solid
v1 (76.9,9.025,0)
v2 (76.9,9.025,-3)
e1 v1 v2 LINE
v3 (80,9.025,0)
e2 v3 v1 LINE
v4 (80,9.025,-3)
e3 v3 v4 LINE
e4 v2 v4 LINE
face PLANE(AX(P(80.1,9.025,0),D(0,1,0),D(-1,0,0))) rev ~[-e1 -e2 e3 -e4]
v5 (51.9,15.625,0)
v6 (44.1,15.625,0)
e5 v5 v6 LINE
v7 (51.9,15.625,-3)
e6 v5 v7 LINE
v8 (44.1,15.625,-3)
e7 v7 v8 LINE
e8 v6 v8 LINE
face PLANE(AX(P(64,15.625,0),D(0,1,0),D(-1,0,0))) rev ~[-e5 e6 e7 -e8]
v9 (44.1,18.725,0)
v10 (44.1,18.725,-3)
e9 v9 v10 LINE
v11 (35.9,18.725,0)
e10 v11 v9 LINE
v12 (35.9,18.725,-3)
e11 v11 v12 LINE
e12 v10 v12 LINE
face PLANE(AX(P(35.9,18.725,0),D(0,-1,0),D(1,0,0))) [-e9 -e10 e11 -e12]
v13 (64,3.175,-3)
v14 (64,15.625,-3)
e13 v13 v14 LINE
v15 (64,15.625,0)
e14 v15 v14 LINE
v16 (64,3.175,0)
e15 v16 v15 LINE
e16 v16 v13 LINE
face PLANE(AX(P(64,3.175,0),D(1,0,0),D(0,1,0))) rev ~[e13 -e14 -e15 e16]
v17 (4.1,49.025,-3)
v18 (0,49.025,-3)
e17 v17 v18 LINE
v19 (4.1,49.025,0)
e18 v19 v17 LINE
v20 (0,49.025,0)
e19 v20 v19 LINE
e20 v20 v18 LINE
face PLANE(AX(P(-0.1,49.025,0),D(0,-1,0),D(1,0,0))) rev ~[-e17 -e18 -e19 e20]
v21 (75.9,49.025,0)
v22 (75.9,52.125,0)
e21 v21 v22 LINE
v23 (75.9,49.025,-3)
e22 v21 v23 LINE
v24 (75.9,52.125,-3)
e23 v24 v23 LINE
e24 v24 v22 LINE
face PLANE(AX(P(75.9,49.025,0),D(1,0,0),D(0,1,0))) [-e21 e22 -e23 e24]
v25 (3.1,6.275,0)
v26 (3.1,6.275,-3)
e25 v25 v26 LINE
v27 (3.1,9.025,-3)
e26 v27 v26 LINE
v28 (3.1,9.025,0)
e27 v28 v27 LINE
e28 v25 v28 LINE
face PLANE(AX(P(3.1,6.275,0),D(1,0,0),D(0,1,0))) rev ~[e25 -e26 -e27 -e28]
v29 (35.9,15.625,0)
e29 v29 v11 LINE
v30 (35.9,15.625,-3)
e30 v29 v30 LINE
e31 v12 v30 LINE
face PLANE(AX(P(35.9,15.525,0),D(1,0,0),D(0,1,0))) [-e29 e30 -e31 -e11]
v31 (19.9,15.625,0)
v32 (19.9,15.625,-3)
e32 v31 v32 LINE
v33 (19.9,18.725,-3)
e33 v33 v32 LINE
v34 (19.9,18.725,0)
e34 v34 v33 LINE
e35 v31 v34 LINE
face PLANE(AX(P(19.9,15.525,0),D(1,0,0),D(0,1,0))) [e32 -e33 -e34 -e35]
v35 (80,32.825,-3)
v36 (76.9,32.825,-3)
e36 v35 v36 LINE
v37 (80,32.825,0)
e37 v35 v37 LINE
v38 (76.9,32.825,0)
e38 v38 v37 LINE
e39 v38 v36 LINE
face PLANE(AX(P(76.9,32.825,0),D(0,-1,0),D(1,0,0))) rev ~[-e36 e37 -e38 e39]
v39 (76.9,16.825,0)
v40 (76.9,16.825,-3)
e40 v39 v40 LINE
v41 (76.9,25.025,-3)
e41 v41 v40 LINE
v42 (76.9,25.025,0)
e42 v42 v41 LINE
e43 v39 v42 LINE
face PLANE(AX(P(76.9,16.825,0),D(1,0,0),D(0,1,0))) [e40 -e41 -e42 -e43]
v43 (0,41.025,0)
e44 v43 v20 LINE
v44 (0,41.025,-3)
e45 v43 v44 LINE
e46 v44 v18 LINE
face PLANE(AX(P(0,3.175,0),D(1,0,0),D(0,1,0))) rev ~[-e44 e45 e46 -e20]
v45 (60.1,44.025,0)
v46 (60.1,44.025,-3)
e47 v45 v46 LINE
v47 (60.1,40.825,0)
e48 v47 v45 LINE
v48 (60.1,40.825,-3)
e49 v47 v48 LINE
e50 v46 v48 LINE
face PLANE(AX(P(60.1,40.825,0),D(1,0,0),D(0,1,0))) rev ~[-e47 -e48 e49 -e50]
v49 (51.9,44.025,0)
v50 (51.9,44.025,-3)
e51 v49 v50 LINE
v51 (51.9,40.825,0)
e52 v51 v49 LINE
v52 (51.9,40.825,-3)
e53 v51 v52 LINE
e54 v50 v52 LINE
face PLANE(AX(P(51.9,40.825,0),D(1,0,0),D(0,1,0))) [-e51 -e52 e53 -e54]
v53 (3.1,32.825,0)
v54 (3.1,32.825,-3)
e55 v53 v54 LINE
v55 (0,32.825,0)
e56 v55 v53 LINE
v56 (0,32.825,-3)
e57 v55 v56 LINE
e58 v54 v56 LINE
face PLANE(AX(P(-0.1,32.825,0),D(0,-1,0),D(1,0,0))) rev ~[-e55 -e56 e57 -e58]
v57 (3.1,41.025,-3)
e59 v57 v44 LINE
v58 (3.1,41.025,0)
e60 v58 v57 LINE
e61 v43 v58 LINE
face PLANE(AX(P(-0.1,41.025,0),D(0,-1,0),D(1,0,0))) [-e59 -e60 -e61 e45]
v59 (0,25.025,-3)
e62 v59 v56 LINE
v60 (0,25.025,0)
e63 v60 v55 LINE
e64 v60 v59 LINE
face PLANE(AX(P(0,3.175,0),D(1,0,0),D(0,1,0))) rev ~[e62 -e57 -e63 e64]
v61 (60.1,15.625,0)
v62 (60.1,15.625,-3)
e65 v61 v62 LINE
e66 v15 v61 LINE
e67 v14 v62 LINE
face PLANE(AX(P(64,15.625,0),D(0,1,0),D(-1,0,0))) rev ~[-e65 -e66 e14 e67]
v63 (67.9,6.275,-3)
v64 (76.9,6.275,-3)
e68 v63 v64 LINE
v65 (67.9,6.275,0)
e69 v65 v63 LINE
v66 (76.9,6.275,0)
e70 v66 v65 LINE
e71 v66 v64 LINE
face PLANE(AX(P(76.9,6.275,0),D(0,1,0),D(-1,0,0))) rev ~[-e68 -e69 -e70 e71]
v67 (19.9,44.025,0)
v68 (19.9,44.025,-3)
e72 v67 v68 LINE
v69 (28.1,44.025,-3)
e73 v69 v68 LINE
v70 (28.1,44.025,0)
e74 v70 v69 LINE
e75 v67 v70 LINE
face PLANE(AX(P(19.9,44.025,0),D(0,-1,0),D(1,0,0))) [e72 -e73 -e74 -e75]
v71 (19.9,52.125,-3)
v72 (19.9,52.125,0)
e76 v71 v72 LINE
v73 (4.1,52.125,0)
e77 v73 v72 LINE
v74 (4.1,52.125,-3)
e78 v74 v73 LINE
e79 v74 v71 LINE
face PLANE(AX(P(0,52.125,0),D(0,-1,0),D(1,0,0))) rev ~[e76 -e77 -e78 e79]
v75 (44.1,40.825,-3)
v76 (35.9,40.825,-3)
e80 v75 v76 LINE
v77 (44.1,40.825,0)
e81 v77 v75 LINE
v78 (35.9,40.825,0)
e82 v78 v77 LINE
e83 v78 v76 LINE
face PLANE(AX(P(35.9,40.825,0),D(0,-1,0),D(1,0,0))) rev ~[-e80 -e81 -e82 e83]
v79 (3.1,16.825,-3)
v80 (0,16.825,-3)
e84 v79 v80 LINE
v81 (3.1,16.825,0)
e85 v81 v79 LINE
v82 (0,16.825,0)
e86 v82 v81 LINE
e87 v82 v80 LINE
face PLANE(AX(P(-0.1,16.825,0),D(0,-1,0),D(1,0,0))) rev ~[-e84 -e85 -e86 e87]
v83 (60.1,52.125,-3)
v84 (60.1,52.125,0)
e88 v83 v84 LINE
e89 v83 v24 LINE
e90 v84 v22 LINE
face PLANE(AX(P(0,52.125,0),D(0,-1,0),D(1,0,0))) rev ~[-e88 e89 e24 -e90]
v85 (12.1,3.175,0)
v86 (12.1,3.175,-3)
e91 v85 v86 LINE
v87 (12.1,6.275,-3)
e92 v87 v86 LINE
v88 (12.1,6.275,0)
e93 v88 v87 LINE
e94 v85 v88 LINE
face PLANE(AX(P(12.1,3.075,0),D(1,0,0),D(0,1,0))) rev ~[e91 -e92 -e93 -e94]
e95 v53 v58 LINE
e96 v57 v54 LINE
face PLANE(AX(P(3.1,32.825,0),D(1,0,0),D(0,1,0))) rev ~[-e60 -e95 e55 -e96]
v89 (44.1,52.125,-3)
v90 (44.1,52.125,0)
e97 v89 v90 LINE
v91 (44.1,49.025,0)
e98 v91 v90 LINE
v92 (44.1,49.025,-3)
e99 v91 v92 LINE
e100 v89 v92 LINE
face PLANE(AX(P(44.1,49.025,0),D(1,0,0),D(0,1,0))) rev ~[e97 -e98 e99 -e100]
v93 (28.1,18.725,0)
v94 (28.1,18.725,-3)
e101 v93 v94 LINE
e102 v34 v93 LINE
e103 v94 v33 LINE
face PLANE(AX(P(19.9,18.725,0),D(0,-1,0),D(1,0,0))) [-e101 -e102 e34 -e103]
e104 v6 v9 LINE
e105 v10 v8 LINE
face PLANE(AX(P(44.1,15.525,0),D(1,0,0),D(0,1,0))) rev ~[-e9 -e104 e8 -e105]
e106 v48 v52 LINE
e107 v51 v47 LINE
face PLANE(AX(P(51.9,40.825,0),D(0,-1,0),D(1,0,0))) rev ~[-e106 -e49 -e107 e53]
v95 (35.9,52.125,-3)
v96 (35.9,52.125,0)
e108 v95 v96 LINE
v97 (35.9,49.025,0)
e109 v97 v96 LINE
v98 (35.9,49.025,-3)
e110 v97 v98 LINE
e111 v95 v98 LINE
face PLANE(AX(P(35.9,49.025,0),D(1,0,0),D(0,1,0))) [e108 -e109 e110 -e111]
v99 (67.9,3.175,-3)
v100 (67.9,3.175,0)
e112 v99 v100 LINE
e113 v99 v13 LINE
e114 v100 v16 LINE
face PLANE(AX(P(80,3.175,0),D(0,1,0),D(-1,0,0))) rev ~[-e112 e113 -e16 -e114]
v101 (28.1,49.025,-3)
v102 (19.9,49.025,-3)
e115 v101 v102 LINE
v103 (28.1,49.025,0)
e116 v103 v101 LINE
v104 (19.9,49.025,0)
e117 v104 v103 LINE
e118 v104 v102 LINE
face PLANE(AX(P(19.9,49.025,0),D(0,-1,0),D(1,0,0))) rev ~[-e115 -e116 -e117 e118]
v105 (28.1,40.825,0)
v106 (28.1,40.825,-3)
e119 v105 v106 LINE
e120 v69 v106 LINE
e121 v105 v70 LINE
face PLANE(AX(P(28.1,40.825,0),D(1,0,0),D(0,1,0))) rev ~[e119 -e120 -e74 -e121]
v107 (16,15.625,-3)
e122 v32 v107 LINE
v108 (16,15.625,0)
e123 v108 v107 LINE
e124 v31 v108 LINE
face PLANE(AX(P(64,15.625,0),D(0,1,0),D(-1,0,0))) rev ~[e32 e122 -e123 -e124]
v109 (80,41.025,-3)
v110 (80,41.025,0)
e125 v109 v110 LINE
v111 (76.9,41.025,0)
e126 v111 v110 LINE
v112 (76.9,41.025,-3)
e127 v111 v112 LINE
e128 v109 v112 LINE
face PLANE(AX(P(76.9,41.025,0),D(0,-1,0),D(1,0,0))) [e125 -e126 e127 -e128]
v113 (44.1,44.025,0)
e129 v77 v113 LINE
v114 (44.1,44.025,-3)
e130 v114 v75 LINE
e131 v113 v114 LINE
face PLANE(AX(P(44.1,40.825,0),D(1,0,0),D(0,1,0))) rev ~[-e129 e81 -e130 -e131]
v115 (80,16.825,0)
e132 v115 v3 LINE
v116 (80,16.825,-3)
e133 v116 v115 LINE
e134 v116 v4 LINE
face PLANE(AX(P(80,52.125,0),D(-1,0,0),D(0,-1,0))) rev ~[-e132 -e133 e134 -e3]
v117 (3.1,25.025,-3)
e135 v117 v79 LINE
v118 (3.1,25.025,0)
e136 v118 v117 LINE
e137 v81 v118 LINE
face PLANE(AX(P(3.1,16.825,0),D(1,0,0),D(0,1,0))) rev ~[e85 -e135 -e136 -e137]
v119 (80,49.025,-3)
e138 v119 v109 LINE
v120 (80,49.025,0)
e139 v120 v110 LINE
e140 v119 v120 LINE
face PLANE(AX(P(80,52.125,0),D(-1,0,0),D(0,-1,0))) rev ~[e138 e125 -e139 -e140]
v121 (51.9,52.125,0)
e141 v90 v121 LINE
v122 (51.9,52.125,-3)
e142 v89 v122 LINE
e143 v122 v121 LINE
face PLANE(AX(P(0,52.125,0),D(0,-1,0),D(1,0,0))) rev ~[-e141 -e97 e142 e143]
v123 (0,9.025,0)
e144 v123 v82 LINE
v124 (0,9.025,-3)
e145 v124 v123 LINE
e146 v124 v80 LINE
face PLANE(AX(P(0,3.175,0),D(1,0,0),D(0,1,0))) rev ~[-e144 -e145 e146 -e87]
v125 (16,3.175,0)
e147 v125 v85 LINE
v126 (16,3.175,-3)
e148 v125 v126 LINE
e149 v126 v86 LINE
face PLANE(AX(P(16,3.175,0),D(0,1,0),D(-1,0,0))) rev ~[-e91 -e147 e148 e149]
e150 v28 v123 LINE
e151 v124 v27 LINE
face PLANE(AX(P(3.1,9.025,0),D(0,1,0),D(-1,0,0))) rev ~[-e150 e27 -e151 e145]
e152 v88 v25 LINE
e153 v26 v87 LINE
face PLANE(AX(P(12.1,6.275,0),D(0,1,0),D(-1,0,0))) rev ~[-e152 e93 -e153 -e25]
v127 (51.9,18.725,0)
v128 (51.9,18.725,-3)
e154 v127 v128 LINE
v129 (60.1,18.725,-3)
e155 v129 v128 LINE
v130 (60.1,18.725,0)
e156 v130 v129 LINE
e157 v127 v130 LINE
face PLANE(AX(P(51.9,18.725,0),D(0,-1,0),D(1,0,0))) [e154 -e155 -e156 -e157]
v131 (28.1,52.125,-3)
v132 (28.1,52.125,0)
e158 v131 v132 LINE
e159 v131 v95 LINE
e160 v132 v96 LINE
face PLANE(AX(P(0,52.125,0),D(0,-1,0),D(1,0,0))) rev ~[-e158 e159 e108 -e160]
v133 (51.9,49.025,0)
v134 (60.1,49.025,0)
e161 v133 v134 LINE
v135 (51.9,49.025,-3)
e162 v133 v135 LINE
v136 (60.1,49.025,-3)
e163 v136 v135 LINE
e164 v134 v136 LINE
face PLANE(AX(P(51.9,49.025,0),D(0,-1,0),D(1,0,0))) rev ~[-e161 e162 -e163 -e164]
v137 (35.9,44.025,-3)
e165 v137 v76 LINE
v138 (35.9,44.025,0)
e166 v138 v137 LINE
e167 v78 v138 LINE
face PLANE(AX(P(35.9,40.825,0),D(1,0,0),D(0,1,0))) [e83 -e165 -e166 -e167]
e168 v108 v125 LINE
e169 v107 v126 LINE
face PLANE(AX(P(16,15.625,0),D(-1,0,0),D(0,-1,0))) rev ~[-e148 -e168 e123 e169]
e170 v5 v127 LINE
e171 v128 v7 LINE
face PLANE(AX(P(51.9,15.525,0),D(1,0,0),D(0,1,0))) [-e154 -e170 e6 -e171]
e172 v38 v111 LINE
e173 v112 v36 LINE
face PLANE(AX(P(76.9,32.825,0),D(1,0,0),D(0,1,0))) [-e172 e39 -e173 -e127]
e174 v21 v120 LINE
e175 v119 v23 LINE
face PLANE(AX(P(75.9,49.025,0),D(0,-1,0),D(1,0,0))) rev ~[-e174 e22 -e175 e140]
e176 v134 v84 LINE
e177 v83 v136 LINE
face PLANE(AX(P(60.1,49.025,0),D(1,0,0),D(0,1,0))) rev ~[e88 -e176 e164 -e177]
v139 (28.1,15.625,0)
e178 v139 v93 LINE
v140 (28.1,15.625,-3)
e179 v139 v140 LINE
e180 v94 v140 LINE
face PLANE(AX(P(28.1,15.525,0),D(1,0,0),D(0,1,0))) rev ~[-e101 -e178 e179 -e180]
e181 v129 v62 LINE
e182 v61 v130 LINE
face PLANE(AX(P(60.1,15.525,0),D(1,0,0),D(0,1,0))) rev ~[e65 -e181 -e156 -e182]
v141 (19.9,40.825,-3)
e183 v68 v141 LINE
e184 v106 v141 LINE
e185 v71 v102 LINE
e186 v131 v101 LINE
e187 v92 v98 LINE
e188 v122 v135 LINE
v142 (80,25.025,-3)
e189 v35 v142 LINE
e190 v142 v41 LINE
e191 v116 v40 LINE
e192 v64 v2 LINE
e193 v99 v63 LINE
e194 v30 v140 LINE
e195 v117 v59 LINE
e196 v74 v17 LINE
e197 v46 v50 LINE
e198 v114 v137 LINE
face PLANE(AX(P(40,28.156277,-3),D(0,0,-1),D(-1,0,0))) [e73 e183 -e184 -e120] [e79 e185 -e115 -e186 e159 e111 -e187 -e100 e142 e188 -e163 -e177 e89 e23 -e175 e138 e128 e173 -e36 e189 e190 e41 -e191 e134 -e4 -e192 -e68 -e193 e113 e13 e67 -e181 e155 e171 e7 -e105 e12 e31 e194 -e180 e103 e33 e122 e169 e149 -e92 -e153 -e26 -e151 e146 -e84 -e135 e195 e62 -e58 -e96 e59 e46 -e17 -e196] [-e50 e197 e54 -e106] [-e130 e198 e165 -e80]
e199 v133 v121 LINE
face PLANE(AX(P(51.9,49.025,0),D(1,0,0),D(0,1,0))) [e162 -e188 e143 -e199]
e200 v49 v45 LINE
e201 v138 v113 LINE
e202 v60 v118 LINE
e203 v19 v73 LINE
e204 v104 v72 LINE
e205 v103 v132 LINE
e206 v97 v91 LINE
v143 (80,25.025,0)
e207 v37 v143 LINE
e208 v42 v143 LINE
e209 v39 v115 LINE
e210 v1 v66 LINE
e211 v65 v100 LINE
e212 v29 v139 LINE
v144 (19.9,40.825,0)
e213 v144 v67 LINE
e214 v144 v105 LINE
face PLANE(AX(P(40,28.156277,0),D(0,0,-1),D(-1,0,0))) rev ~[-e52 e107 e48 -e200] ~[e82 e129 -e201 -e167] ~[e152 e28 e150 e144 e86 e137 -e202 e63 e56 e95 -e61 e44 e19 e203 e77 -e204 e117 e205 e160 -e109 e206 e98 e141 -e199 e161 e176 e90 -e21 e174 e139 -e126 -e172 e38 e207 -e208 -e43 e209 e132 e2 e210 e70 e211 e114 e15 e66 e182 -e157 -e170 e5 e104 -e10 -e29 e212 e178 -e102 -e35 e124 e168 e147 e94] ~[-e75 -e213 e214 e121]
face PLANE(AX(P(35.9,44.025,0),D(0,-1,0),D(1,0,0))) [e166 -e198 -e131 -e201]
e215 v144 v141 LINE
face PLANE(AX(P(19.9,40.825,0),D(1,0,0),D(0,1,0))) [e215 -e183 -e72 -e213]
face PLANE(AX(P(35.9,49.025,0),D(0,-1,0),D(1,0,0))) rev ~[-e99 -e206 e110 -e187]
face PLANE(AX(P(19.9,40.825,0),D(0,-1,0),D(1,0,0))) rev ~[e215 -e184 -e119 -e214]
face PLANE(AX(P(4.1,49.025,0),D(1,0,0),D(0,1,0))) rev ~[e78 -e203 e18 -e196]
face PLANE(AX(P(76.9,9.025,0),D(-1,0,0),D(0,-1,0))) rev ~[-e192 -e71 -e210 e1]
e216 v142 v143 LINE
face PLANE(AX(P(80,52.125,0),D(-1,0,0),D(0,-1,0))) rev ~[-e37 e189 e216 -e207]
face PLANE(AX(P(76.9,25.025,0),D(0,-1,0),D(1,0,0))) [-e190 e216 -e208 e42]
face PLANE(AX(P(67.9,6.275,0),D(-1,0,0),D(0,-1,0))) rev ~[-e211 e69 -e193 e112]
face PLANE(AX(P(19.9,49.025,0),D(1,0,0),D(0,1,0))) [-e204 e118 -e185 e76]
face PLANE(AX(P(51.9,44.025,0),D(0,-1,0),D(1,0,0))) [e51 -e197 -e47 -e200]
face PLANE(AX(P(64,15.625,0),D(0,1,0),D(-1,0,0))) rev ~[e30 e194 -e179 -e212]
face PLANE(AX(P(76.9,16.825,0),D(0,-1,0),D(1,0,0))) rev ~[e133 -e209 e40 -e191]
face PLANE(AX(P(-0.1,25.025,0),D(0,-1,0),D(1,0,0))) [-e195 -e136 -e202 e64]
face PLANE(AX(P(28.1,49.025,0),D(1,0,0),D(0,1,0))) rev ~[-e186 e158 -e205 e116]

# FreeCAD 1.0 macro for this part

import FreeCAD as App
import Part
import Sketcher
from FreeCAD import Vector
Q = App.Units.Quantity

doc = App.newDocument("Part")
body = doc.addObject("PartDesign::Body", "Body")

# Sketch on XY plane
sketch1 = doc.addObject("Sketcher::SketchObject", "Sketch")
body.addObject(sketch1)
sketch1.AttachmentSupport = (doc.XY_Plane, [""])
sketch1.MapMode = "FlatFace"
sketch1.addGeometry(Part.LineSegment(Vector(80, 52.125, 0), Vector(0, 52.125, 0)), False)
sketch1.addGeometry(Part.LineSegment(Vector(0, 52.125, 0), Vector(0, 3.175, 0)), False)
sketch1.addGeometry(Part.LineSegment(Vector(0, 3.175, 0), Vector(16, 3.175, 0)), False)
sketch1.addGeometry(Part.LineSegment(Vector(16, 3.175, 0), Vector(16, 15.625, 0)), False)
sketch1.addGeometry(Part.LineSegment(Vector(16, 15.625, 0), Vector(64, 15.625, 0)), False)
sketch1.addGeometry(Part.LineSegment(Vector(64, 15.625, 0), Vector(64, 3.175, 0)), False)
sketch1.addGeometry(Part.LineSegment(Vector(64, 3.175, 0), Vector(80, 3.175, 0)), False)
sketch1.addGeometry(Part.LineSegment(Vector(80, 3.175, 0), Vector(80, 52.125, 0)), False)
sketch1.addConstraint(Sketcher.Constraint("Coincident", 0, 2, 1, 1))
sketch1.addConstraint(Sketcher.Constraint("Coincident", 1, 2, 2, 1))
sketch1.addConstraint(Sketcher.Constraint("Coincident", 2, 2, 3, 1))
sketch1.addConstraint(Sketcher.Constraint("Coincident", 3, 2, 4, 1))
sketch1.addConstraint(Sketcher.Constraint("Coincident", 4, 2, 5, 1))
sketch1.addConstraint(Sketcher.Constraint("Coincident", 5, 2, 6, 1))
sketch1.addConstraint(Sketcher.Constraint("Coincident", 6, 2, 7, 1))
sketch1.addConstraint(Sketcher.Constraint("Coincident", 7, 2, 0, 1))
sketch1.addConstraint(Sketcher.Constraint("Horizontal", 0))
sketch1.addConstraint(Sketcher.Constraint("Vertical", 1))
sketch1.addConstraint(Sketcher.Constraint("Horizontal", 2))
sketch1.addConstraint(Sketcher.Constraint("Vertical", 3))
sketch1.addConstraint(Sketcher.Constraint("Horizontal", 4))
sketch1.addConstraint(Sketcher.Constraint("Vertical", 5))
sketch1.addConstraint(Sketcher.Constraint("Horizontal", 6))
sketch1.addConstraint(Sketcher.Constraint("Vertical", 7))
sketch1.addConstraint(Sketcher.Constraint("PointOnObject", 0, 2, -2))
sketch1.addConstraint(Sketcher.Constraint("Horizontal", 2, 2, 5, 2))
sketch1.addConstraint(Sketcher.Constraint("Equal", 2, 6))
sketch1.addConstraint(Sketcher.Constraint("DistanceX", 0, 2, 0, 1, Q("80 mm")))
sketch1.addConstraint(Sketcher.Constraint("DistanceX", 2, 1, 2, 2, Q("16 mm")))
sketch1.addConstraint(Sketcher.Constraint("DistanceY", 1, 2, 1, 1, Q("48.95 mm")))
sketch1.addConstraint(Sketcher.Constraint("DistanceY", 3, 1, 3, 2, Q("12.45 mm")))
sketch1.addConstraint(Sketcher.Constraint("DistanceY", -1, 1, 0, 2, Q("52.125 mm")))
pad1 = doc.addObject("PartDesign::Pad", "Pad")
body.addObject(pad1)
pad1.Profile = sketch1
pad1.Length = 3
pad1.Reversed = True

# Sketch on XY plane
sketch2 = doc.addObject("Sketcher::SketchObject", "Sketch001")
body.addObject(sketch2)
sketch2.AttachmentSupport = (doc.XY_Plane, [""])
sketch2.MapMode = "FlatFace"
sketch2.addGeometry(Part.LineSegment(Vector(-0.1, 52.225, 0), Vector(-0.1, 49.025, 0)), False)
sketch2.addGeometry(Part.LineSegment(Vector(-0.1, 49.025, 0), Vector(4.1, 49.025, 0)), False)
sketch2.addGeometry(Part.LineSegment(Vector(4.1, 49.025, 0), Vector(4.1, 52.225, 0)), False)
sketch2.addGeometry(Part.LineSegment(Vector(4.1, 52.225, 0), Vector(-0.1, 52.225, 0)), False)
sketch2.addGeometry(Part.LineSegment(Vector(-0.1, 25.025, 0), Vector(-0.1, 16.825, 0)), False)
sketch2.addGeometry(Part.LineSegment(Vector(-0.1, 16.825, 0), Vector(3.1, 16.825, 0)), False)
sketch2.addGeometry(Part.LineSegment(Vector(3.1, 16.825, 0), Vector(3.1, 25.025, 0)), False)
sketch2.addGeometry(Part.LineSegment(Vector(3.1, 25.025, 0), Vector(-0.1, 25.025, 0)), False)
sketch2.addGeometry(Part.LineSegment(Vector(19.9, 18.725, 0), Vector(19.9, 15.525, 0)), False)
sketch2.addGeometry(Part.LineSegment(Vector(19.9, 15.525, 0), Vector(28.1, 15.525, 0)), False)
sketch2.addGeometry(Part.LineSegment(Vector(28.1, 15.525, 0), Vector(28.1, 18.725, 0)), False)
sketch2.addGeometry(Part.LineSegment(Vector(28.1, 18.725, 0), Vector(19.9, 18.725, 0)), False)
sketch2.addGeometry(Part.LineSegment(Vector(35.9, 18.725, 0), Vector(35.9, 15.525, 0)), False)
sketch2.addGeometry(Part.LineSegment(Vector(35.9, 15.525, 0), Vector(44.1, 15.525, 0)), False)
sketch2.addGeometry(Part.LineSegment(Vector(44.1, 15.525, 0), Vector(44.1, 18.725, 0)), False)
sketch2.addGeometry(Part.LineSegment(Vector(44.1, 18.725, 0), Vector(35.9, 18.725, 0)), False)
sketch2.addGeometry(Part.LineSegment(Vector(-0.1, 41.025, 0), Vector(-0.1, 32.825, 0)), False)
sketch2.addGeometry(Part.LineSegment(Vector(-0.1, 32.825, 0), Vector(3.1, 32.825, 0)), False)
sketch2.addGeometry(Part.LineSegment(Vector(3.1, 32.825, 0), Vector(3.1, 41.025, 0)), False)
sketch2.addGeometry(Part.LineSegment(Vector(3.1, 41.025, 0), Vector(-0.1, 41.025, 0)), False)
sketch2.addGeometry(Part.LineSegment(Vector(35.9, 52.225, 0), Vector(35.9, 49.025, 0)), False)
sketch2.addGeometry(Part.LineSegment(Vector(35.9, 49.025, 0), Vector(44.1, 49.025, 0)), False)
sketch2.addGeometry(Part.LineSegment(Vector(44.1, 49.025, 0), Vector(44.1, 52.225, 0)), False)
sketch2.addGeometry(Part.LineSegment(Vector(44.1, 52.225, 0), Vector(35.9, 52.225, 0)), False)
sketch2.addGeometry(Part.LineSegment(Vector(35.9, 44.025, 0), Vector(35.9, 40.825, 0)), False)
sketch2.addGeometry(Part.LineSegment(Vector(35.9, 40.825, 0), Vector(44.1, 40.825, 0)), False)
sketch2.addGeometry(Part.LineSegment(Vector(44.1, 40.825, 0), Vector(44.1, 44.025, 0)), False)
sketch2.addGeometry(Part.LineSegment(Vector(44.1, 44.025, 0), Vector(35.9, 44.025, 0)), False)
sketch2.addGeometry(Part.LineSegment(Vector(19.9, 44.025, 0), Vector(19.9, 40.825, 0)), False)
sketch2.addGeometry(Part.LineSegment(Vector(19.9, 40.825, 0), Vector(28.1, 40.825, 0)), False)
sketch2.addGeometry(Part.LineSegment(Vector(28.1, 40.825, 0), Vector(28.1, 44.025, 0)), False)
sketch2.addGeometry(Part.LineSegment(Vector(28.1, 44.025, 0), Vector(19.9, 44.025, 0)), False)
sketch2.addGeometry(Part.LineSegment(Vector(19.9, 52.225, 0), Vector(19.9, 49.025, 0)), False)
sketch2.addGeometry(Part.LineSegment(Vector(19.9, 49.025, 0), Vector(28.1, 49.025, 0)), False)
sketch2.addGeometry(Part.LineSegment(Vector(28.1, 49.025, 0), Vector(28.1, 52.225, 0)), False)
sketch2.addGeometry(Part.LineSegment(Vector(28.1, 52.225, 0), Vector(19.9, 52.225, 0)), False)
sketch2.addGeometry(Part.LineSegment(Vector(51.9, 44.025, 0), Vector(51.9, 40.825, 0)), False)
sketch2.addGeometry(Part.LineSegment(Vector(51.9, 40.825, 0), Vector(60.1, 40.825, 0)), False)
sketch2.addGeometry(Part.LineSegment(Vector(60.1, 40.825, 0), Vector(60.1, 44.025, 0)), False)
sketch2.addGeometry(Part.LineSegment(Vector(60.1, 44.025, 0), Vector(51.9, 44.025, 0)), False)
sketch2.addGeometry(Part.LineSegment(Vector(51.9, 18.725, 0), Vector(51.9, 15.525, 0)), False)
sketch2.addGeometry(Part.LineSegment(Vector(51.9, 15.525, 0), Vector(60.1, 15.525, 0)), False)
sketch2.addGeometry(Part.LineSegment(Vector(60.1, 15.525, 0), Vector(60.1, 18.725, 0)), False)
sketch2.addGeometry(Part.LineSegment(Vector(60.1, 18.725, 0), Vector(51.9, 18.725, 0)), False)
sketch2.addGeometry(Part.LineSegment(Vector(76.9, 41.025, 0), Vector(76.9, 32.825, 0)), False)
sketch2.addGeometry(Part.LineSegment(Vector(76.9, 32.825, 0), Vector(80.1, 32.825, 0)), False)
sketch2.addGeometry(Part.LineSegment(Vector(80.1, 32.825, 0), Vector(80.1, 41.025, 0)), False)
sketch2.addGeometry(Part.LineSegment(Vector(80.1, 41.025, 0), Vector(76.9, 41.025, 0)), False)
sketch2.addGeometry(Part.LineSegment(Vector(75.9, 52.225, 0), Vector(75.9, 49.025, 0)), False)
sketch2.addGeometry(Part.LineSegment(Vector(75.9, 49.025, 0), Vector(80.1, 49.025, 0)), False)
sketch2.addGeometry(Part.LineSegment(Vector(80.1, 49.025, 0), Vector(80.1, 52.225, 0)), False)
sketch2.addGeometry(Part.LineSegment(Vector(80.1, 52.225, 0), Vector(75.9, 52.225, 0)), False)
sketch2.addGeometry(Part.LineSegment(Vector(76.9, 25.025, 0), Vector(76.9, 16.825, 0)), False)
sketch2.addGeometry(Part.LineSegment(Vector(76.9, 16.825, 0), Vector(80.1, 16.825, 0)), False)
sketch2.addGeometry(Part.LineSegment(Vector(80.1, 16.825, 0), Vector(80.1, 25.025, 0)), False)
sketch2.addGeometry(Part.LineSegment(Vector(80.1, 25.025, 0), Vector(76.9, 25.025, 0)), False)
sketch2.addGeometry(Part.LineSegment(Vector(51.9, 52.225, 0), Vector(51.9, 49.025, 0)), False)
sketch2.addGeometry(Part.LineSegment(Vector(51.9, 49.025, 0), Vector(60.1, 49.025, 0)), False)
sketch2.addGeometry(Part.LineSegment(Vector(60.1, 49.025, 0), Vector(60.1, 52.225, 0)), False)
sketch2.addGeometry(Part.LineSegment(Vector(60.1, 52.225, 0), Vector(51.9, 52.225, 0)), False)
sketch2.addGeometry(Part.LineSegment(Vector(76.9, 9.025, 0), Vector(76.9, 6.275, 0)), False)
sketch2.addGeometry(Part.LineSegment(Vector(76.9, 6.275, 0), Vector(67.9, 6.275, 0)), False)
sketch2.addGeometry(Part.LineSegment(Vector(67.9, 6.275, 0), Vector(67.9, 3.075, 0)), False)
sketch2.addGeometry(Part.LineSegment(Vector(67.9, 3.075, 0), Vector(80.1, 3.075, 0)), False)
sketch2.addGeometry(Part.LineSegment(Vector(80.1, 3.075, 0), Vector(80.1, 9.025, 0)), False)
sketch2.addGeometry(Part.LineSegment(Vector(80.1, 9.025, 0), Vector(76.9, 9.025, 0)), False)
sketch2.addGeometry(Part.LineSegment(Vector(3.1, 6.275, 0), Vector(3.1, 9.025, 0)), False)
sketch2.addGeometry(Part.LineSegment(Vector(3.1, 9.025, 0), Vector(-0.1, 9.025, 0)), False)
sketch2.addGeometry(Part.LineSegment(Vector(-0.1, 9.025, 0), Vector(-0.1, 3.075, 0)), False)
sketch2.addGeometry(Part.LineSegment(Vector(-0.1, 3.075, 0), Vector(12.1, 3.075, 0)), False)
sketch2.addGeometry(Part.LineSegment(Vector(12.1, 3.075, 0), Vector(12.1, 6.275, 0)), False)
sketch2.addGeometry(Part.LineSegment(Vector(12.1, 6.275, 0), Vector(3.1, 6.275, 0)), False)
sketch2.addConstraint(Sketcher.Constraint("Coincident", 0, 2, 1, 1))
sketch2.addConstraint(Sketcher.Constraint("Coincident", 1, 2, 2, 1))
sketch2.addConstraint(Sketcher.Constraint("Coincident", 2, 2, 3, 1))
sketch2.addConstraint(Sketcher.Constraint("Coincident", 3, 2, 0, 1))
sketch2.addConstraint(Sketcher.Constraint("Coincident", 4, 2, 5, 1))
sketch2.addConstraint(Sketcher.Constraint("Coincident", 5, 2, 6, 1))
sketch2.addConstraint(Sketcher.Constraint("Coincident", 6, 2, 7, 1))
sketch2.addConstraint(Sketcher.Constraint("Coincident", 7, 2, 4, 1))
sketch2.addConstraint(Sketcher.Constraint("Coincident", 8, 2, 9, 1))
sketch2.addConstraint(Sketcher.Constraint("Coincident", 9, 2, 10, 1))
sketch2.addConstraint(Sketcher.Constraint("Coincident", 10, 2, 11, 1))
sketch2.addConstraint(Sketcher.Constraint("Coincident", 11, 2, 8, 1))
sketch2.addConstraint(Sketcher.Constraint("Coincident", 12, 2, 13, 1))
sketch2.addConstraint(Sketcher.Constraint("Coincident", 13, 2, 14, 1))
sketch2.addConstraint(Sketcher.Constraint("Coincident", 14, 2, 15, 1))
sketch2.addConstraint(Sketcher.Constraint("Coincident", 15, 2, 12, 1))
sketch2.addConstraint(Sketcher.Constraint("Coincident", 16, 2, 17, 1))
sketch2.addConstraint(Sketcher.Constraint("Coincident", 17, 2, 18, 1))
sketch2.addConstraint(Sketcher.Constraint("Coincident", 18, 2, 19, 1))
sketch2.addConstraint(Sketcher.Constraint("Coincident", 19, 2, 16, 1))
sketch2.addConstraint(Sketcher.Constraint("Coincident", 20, 2, 21, 1))
sketch2.addConstraint(Sketcher.Constraint("Coincident", 21, 2, 22, 1))
sketch2.addConstraint(Sketcher.Constraint("Coincident", 22, 2, 23, 1))
sketch2.addConstraint(Sketcher.Constraint("Coincident", 23, 2, 20, 1))
sketch2.addConstraint(Sketcher.Constraint("Coincident", 24, 2, 25, 1))
sketch2.addConstraint(Sketcher.Constraint("Coincident", 25, 2, 26, 1))
sketch2.addConstraint(Sketcher.Constraint("Coincident", 26, 2, 27, 1))
sketch2.addConstraint(Sketcher.Constraint("Coincident", 27, 2, 24, 1))
sketch2.addConstraint(Sketcher.Constraint("Coincident", 28, 2, 29, 1))
sketch2.addConstraint(Sketcher.Constraint("Coincident", 29, 2, 30, 1))
sketch2.addConstraint(Sketcher.Constraint("Coincident", 30, 2, 31, 1))
sketch2.addConstraint(Sketcher.Constraint("Coincident", 31, 2, 28, 1))
sketch2.addConstraint(Sketcher.Constraint("Coincident", 32, 2, 33, 1))
sketch2.addConstraint(Sketcher.Constraint("Coincident", 33, 2, 34, 1))
sketch2.addConstraint(Sketcher.Constraint("Coincident", 34, 2, 35, 1))
sketch2.addConstraint(Sketcher.Constraint("Coincident", 35, 2, 32, 1))
sketch2.addConstraint(Sketcher.Constraint("Coincident", 36, 2, 37, 1))
sketch2.addConstraint(Sketcher.Constraint("Coincident", 37, 2, 38, 1))
sketch2.addConstraint(Sketcher.Constraint("Coincident", 38, 2, 39, 1))
sketch2.addConstraint(Sketcher.Constraint("Coincident", 39, 2, 36, 1))
sketch2.addConstraint(Sketcher.Constraint("Coincident", 40, 2, 41, 1))
sketch2.addConstraint(Sketcher.Constraint("Coincident", 41, 2, 42, 1))
sketch2.addConstraint(Sketcher.Constraint("Coincident", 42, 2, 43, 1))
sketch2.addConstraint(Sketcher.Constraint("Coincident", 43, 2, 40, 1))
sketch2.addConstraint(Sketcher.Constraint("Coincident", 44, 2, 45, 1))
sketch2.addConstraint(Sketcher.Constraint("Coincident", 45, 2, 46, 1))
sketch2.addConstraint(Sketcher.Constraint("Coincident", 46, 2, 47, 1))
sketch2.addConstraint(Sketcher.Constraint("Coincident", 47, 2, 44, 1))
sketch2.addConstraint(Sketcher.Constraint("Coincident", 48, 2, 49, 1))
sketch2.addConstraint(Sketcher.Constraint("Coincident", 49, 2, 50, 1))
sketch2.addConstraint(Sketcher.Constraint("Coincident", 50, 2, 51, 1))
sketch2.addConstraint(Sketcher.Constraint("Coincident", 51, 2, 48, 1))
sketch2.addConstraint(Sketcher.Constraint("Coincident", 52, 2, 53, 1))
sketch2.addConstraint(Sketcher.Constraint("Coincident", 53, 2, 54, 1))
sketch2.addConstraint(Sketcher.Constraint("Coincident", 54, 2, 55, 1))
sketch2.addConstraint(Sketcher.Constraint("Coincident", 55, 2, 52, 1))
sketch2.addConstraint(Sketcher.Constraint("Coincident", 56, 2, 57, 1))
sketch2.addConstraint(Sketcher.Constraint("Coincident", 57, 2, 58, 1))
sketch2.addConstraint(Sketcher.Constraint("Coincident", 58, 2, 59, 1))
sketch2.addConstraint(Sketcher.Constraint("Coincident", 59, 2, 56, 1))
sketch2.addConstraint(Sketcher.Constraint("Coincident", 60, 2, 61, 1))
sketch2.addConstraint(Sketcher.Constraint("Coincident", 61, 2, 62, 1))
sketch2.addConstraint(Sketcher.Constraint("Coincident", 62, 2, 63, 1))
sketch2.addConstraint(Sketcher.Constraint("Coincident", 63, 2, 64, 1))
sketch2.addConstraint(Sketcher.Constraint("Coincident", 64, 2, 65, 1))
sketch2.addConstraint(Sketcher.Constraint("Coincident", 65, 2, 60, 1))
sketch2.addConstraint(Sketcher.Constraint("Coincident", 66, 2, 67, 1))
sketch2.addConstraint(Sketcher.Constraint("Coincident", 67, 2, 68, 1))
sketch2.addConstraint(Sketcher.Constraint("Coincident", 68, 2, 69, 1))
sketch2.addConstraint(Sketcher.Constraint("Coincident", 69, 2, 70, 1))
sketch2.addConstraint(Sketcher.Constraint("Coincident", 70, 2, 71, 1))
sketch2.addConstraint(Sketcher.Constraint("Coincident", 71, 2, 66, 1))
sketch2.addConstraint(Sketcher.Constraint("Vertical", 0))
sketch2.addConstraint(Sketcher.Constraint("Horizontal", 1))
sketch2.addConstraint(Sketcher.Constraint("Vertical", 2))
sketch2.addConstraint(Sketcher.Constraint("Horizontal", 3))
sketch2.addConstraint(Sketcher.Constraint("Vertical", 4))
sketch2.addConstraint(Sketcher.Constraint("Horizontal", 5))
sketch2.addConstraint(Sketcher.Constraint("Vertical", 6))
sketch2.addConstraint(Sketcher.Constraint("Horizontal", 7))
sketch2.addConstraint(Sketcher.Constraint("Vertical", 8))
sketch2.addConstraint(Sketcher.Constraint("Horizontal", 9))
sketch2.addConstraint(Sketcher.Constraint("Vertical", 10))
sketch2.addConstraint(Sketcher.Constraint("Horizontal", 11))
sketch2.addConstraint(Sketcher.Constraint("Vertical", 12))
sketch2.addConstraint(Sketcher.Constraint("Horizontal", 13))
sketch2.addConstraint(Sketcher.Constraint("Vertical", 14))
sketch2.addConstraint(Sketcher.Constraint("Horizontal", 15))
sketch2.addConstraint(Sketcher.Constraint("Vertical", 16))
sketch2.addConstraint(Sketcher.Constraint("Horizontal", 17))
sketch2.addConstraint(Sketcher.Constraint("Vertical", 18))
sketch2.addConstraint(Sketcher.Constraint("Horizontal", 19))
sketch2.addConstraint(Sketcher.Constraint("Vertical", 20))
sketch2.addConstraint(Sketcher.Constraint("Horizontal", 21))
sketch2.addConstraint(Sketcher.Constraint("Vertical", 22))
sketch2.addConstraint(Sketcher.Constraint("Horizontal", 23))
sketch2.addConstraint(Sketcher.Constraint("Vertical", 24))
sketch2.addConstraint(Sketcher.Constraint("Horizontal", 25))
sketch2.addConstraint(Sketcher.Constraint("Vertical", 26))
sketch2.addConstraint(Sketcher.Constraint("Horizontal", 27))
sketch2.addConstraint(Sketcher.Constraint("Vertical", 28))
sketch2.addConstraint(Sketcher.Constraint("Horizontal", 29))
sketch2.addConstraint(Sketcher.Constraint("Vertical", 30))
sketch2.addConstraint(Sketcher.Constraint("Horizontal", 31))
sketch2.addConstraint(Sketcher.Constraint("Vertical", 32))
sketch2.addConstraint(Sketcher.Constraint("Horizontal", 33))
sketch2.addConstraint(Sketcher.Constraint("Vertical", 34))
sketch2.addConstraint(Sketcher.Constraint("Horizontal", 35))
sketch2.addConstraint(Sketcher.Constraint("Vertical", 36))
sketch2.addConstraint(Sketcher.Constraint("Horizontal", 37))
sketch2.addConstraint(Sketcher.Constraint("Vertical", 38))
sketch2.addConstraint(Sketcher.Constraint("Horizontal", 39))
sketch2.addConstraint(Sketcher.Constraint("Vertical", 40))
sketch2.addConstraint(Sketcher.Constraint("Horizontal", 41))
sketch2.addConstraint(Sketcher.Constraint("Vertical", 42))
sketch2.addConstraint(Sketcher.Constraint("Horizontal", 43))
sketch2.addConstraint(Sketcher.Constraint("Vertical", 44))
sketch2.addConstraint(Sketcher.Constraint("Horizontal", 45))
sketch2.addConstraint(Sketcher.Constraint("Vertical", 46))
sketch2.addConstraint(Sketcher.Constraint("Horizontal", 47))
sketch2.addConstraint(Sketcher.Constraint("Vertical", 48))
sketch2.addConstraint(Sketcher.Constraint("Horizontal", 49))
sketch2.addConstraint(Sketcher.Constraint("Vertical", 50))
sketch2.addConstraint(Sketcher.Constraint("Horizontal", 51))
sketch2.addConstraint(Sketcher.Constraint("Vertical", 52))
sketch2.addConstraint(Sketcher.Constraint("Horizontal", 53))
sketch2.addConstraint(Sketcher.Constraint("Vertical", 54))
sketch2.addConstraint(Sketcher.Constraint("Horizontal", 55))
sketch2.addConstraint(Sketcher.Constraint("Vertical", 56))
sketch2.addConstraint(Sketcher.Constraint("Horizontal", 57))
sketch2.addConstraint(Sketcher.Constraint("Vertical", 58))
sketch2.addConstraint(Sketcher.Constraint("Horizontal", 59))
sketch2.addConstraint(Sketcher.Constraint("Vertical", 60))
sketch2.addConstraint(Sketcher.Constraint("Horizontal", 61))
sketch2.addConstraint(Sketcher.Constraint("Vertical", 62))
sketch2.addConstraint(Sketcher.Constraint("Horizontal", 63))
sketch2.addConstraint(Sketcher.Constraint("Vertical", 64))
sketch2.addConstraint(Sketcher.Constraint("Horizontal", 65))
sketch2.addConstraint(Sketcher.Constraint("Vertical", 66))
sketch2.addConstraint(Sketcher.Constraint("Horizontal", 67))
sketch2.addConstraint(Sketcher.Constraint("Vertical", 68))
sketch2.addConstraint(Sketcher.Constraint("Horizontal", 69))
sketch2.addConstraint(Sketcher.Constraint("Vertical", 70))
sketch2.addConstraint(Sketcher.Constraint("Horizontal", 71))
sketch2.addConstraint(Sketcher.Constraint("Horizontal", 9, 2, 12, 2))
sketch2.addConstraint(Sketcher.Constraint("Horizontal", 11, 2, 14, 2))
sketch2.addConstraint(Sketcher.Constraint("Horizontal", 1, 2, 20, 2))
sketch2.addConstraint(Sketcher.Constraint("Horizontal", 3, 2, 22, 2))
sketch2.addConstraint(Sketcher.Constraint("Horizontal", 25, 2, 28, 2))
sketch2.addConstraint(Sketcher.Constraint("Horizontal", 27, 2, 30, 2))
sketch2.addConstraint(Sketcher.Constraint("Horizontal", 21, 2, 32, 2))
sketch2.addConstraint(Sketcher.Constraint("Horizontal", 23, 2, 34, 2))
sketch2.addConstraint(Sketcher.Constraint("Horizontal", 29, 2, 36, 2))
sketch2.addConstraint(Sketcher.Constraint("Horizontal", 31, 2, 38, 2))
sketch2.addConstraint(Sketcher.Constraint("Horizontal", 13, 2, 40, 2))
sketch2.addConstraint(Sketcher.Constraint("Horizontal", 15, 2, 42, 2))
sketch2.addConstraint(Sketcher.Constraint("Horizontal", 17, 2, 44, 2))
sketch2.addConstraint(Sketcher.Constraint("Horizontal", 19, 2, 46, 2))
sketch2.addConstraint(Sketcher.Constraint("Horizontal", 33, 2, 48, 2))
sketch2.addConstraint(Sketcher.Constraint("Horizontal", 35, 2, 50, 2))
sketch2.addConstraint(Sketcher.Constraint("Horizontal", 5, 2, 52, 2))
sketch2.addConstraint(Sketcher.Constraint("Horizontal", 7, 2, 54, 2))
sketch2.addConstraint(Sketcher.Constraint("Horizontal", 49, 2, 56, 2))
sketch2.addConstraint(Sketcher.Constraint("Horizontal", 51, 2, 58, 2))
sketch2.addConstraint(Sketcher.Constraint("Horizontal", 65, 2, 66, 2))
sketch2.addConstraint(Sketcher.Constraint("Horizontal", 63, 2, 68, 2))
sketch2.addConstraint(Sketcher.Constraint("Horizontal", 61, 2, 70, 2))
sketch2.addConstraint(Sketcher.Constraint("Vertical", 3, 2, 4, 2))
sketch2.addConstraint(Sketcher.Constraint("Vertical", 7, 2, 16, 2))
sketch2.addConstraint(Sketcher.Constraint("Vertical", 6, 2, 17, 2))
sketch2.addConstraint(Sketcher.Constraint("Vertical", 15, 2, 20, 2))
sketch2.addConstraint(Sketcher.Constraint("Vertical", 14, 2, 21, 2))
sketch2.addConstraint(Sketcher.Constraint("Vertical", 23, 2, 24, 2))
sketch2.addConstraint(Sketcher.Constraint("Vertical", 22, 2, 25, 2))
sketch2.addConstraint(Sketcher.Constraint("Vertical", 11, 2, 28, 2))
sketch2.addConstraint(Sketcher.Constraint("Vertical", 10, 2, 29, 2))
sketch2.addConstraint(Sketcher.Constraint("Vertical", 31, 2, 32, 2))
sketch2.addConstraint(Sketcher.Constraint("Vertical", 30, 2, 33, 2))
sketch2.addConstraint(Sketcher.Constraint("Vertical", 39, 2, 40, 2))
sketch2.addConstraint(Sketcher.Constraint("Vertical", 38, 2, 41, 2))
sketch2.addConstraint(Sketcher.Constraint("Vertical", 46, 2, 49, 2))
sketch2.addConstraint(Sketcher.Constraint("Vertical", 47, 2, 52, 2))
sketch2.addConstraint(Sketcher.Constraint("Vertical", 50, 2, 53, 2))
sketch2.addConstraint(Sketcher.Constraint("Vertical", 43, 2, 56, 2))
sketch2.addConstraint(Sketcher.Constraint("Vertical", 42, 2, 57, 2))
sketch2.addConstraint(Sketcher.Constraint("Vertical", 55, 2, 60, 2))
sketch2.addConstraint(Sketcher.Constraint("Vertical", 54, 2, 63, 2))
sketch2.addConstraint(Sketcher.Constraint("Vertical", 18, 2, 66, 2))
sketch2.addConstraint(Sketcher.Constraint("Vertical", 19, 2, 67, 2))
sketch2.addConstraint(Sketcher.Constraint("Equal", 11, 13))
sketch2.addConstraint(Sketcher.Constraint("Equal", 35, 37))
sketch2.addConstraint(Sketcher.Constraint("Equal", 19, 45))
sketch2.addConstraint(Sketcher.Constraint("Equal", 3, 49))
sketch2.addConstraint(Sketcher.Constraint("Equal", 63, 69))
sketch2.addConstraint(Sketcher.Constraint("Equal", 67, 0))
sketch2.addConstraint(Sketcher.Constraint("Equal", 59, 4))
sketch2.addConstraint(Sketcher.Constraint("Equal", 2, 8))
sketch2.addConstraint(Sketcher.Constraint("Equal", 6, 16))
sketch2.addConstraint(Sketcher.Constraint("Equal", 22, 24))
sketch2.addConstraint(Sketcher.Constraint("Equal", 58, 62))
sketch2.addConstraint(Sketcher.Constraint("DistanceX", 61, 2, 61, 1, Q("9 mm")))
sketch2.addConstraint(Sketcher.Constraint("DistanceX", 1, 1, 1, 2, Q("4.2 mm")))
sketch2.addConstraint(Sketcher.Constraint("DistanceX", 5, 1, 5, 2, Q("3.2 mm")))
sketch2.addConstraint(Sketcher.Constraint("DistanceX", 9, 1, 9, 2, Q("8.2 mm")))
sketch2.addConstraint(Sketcher.Constraint("DistanceY", 60, 2, 60, 1, Q("2.75 mm")))
sketch2.addConstraint(Sketcher.Constraint("DistanceX", 0, 2, -1, 1, Q("0.1 mm")))
sketch2.addConstraint(Sketcher.Constraint("DistanceX", -1, 1, 8, 2, Q("19.9 mm")))
sketch2.addConstraint(Sketcher.Constraint("DistanceX", -1, 1, 12, 2, Q("35.9 mm")))
sketch2.addConstraint(Sketcher.Constraint("DistanceX", -1, 1, 36, 2, Q("51.9 mm")))
sketch2.addConstraint(Sketcher.Constraint("DistanceX", -1, 1, 44, 2, Q("76.9 mm")))
sketch2.addConstraint(Sketcher.Constraint("DistanceY", -1, 1, 0, 2, Q("49.025 mm")))
sketch2.addConstraint(Sketcher.Constraint("DistanceY", -1, 1, 4, 2, Q("16.825 mm")))
sketch2.addConstraint(Sketcher.Constraint("DistanceY", -1, 1, 8, 2, Q("15.525 mm")))
sketch2.addConstraint(Sketcher.Constraint("DistanceY", -1, 1, 16, 2, Q("32.825 mm")))
sketch2.addConstraint(Sketcher.Constraint("DistanceY", -1, 1, 24, 2, Q("40.825 mm")))
sketch2.addConstraint(Sketcher.Constraint("DistanceY", -1, 1, 60, 2, Q("6.275 mm")))
pocket1 = doc.addObject("PartDesign::Pocket", "Pocket")
body.addObject(pocket1)
pocket1.Profile = sketch2
pocket1.Type = "ThroughAll"

doc.recompute()
